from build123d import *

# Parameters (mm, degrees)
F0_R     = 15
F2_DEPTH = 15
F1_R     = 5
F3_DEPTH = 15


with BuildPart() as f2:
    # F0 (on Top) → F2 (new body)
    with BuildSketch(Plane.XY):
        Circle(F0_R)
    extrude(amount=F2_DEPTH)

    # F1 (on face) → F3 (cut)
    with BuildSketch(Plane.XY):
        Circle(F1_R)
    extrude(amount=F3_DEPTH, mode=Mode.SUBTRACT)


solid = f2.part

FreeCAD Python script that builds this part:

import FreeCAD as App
import Part
import Sketcher

V = App.Vector
Q = App.Units.Quantity

doc = App.newDocument("Part")
body = doc.addObject("PartDesign::Body", "Body")

# Sketch on XY plane
sketch1 = body.newObject("Sketcher::SketchObject", "Sketch")
sketch1.AttachmentSupport = (doc.getObject("XY_Plane"), [""])
sketch1.MapMode = "FlatFace"
sketch1.addGeometry(Part.Circle(V(0, 0, 0), V(0, 0, 1), 15), False)
sketch1.addConstraint([
    Sketcher.Constraint("Coincident", 0, 3, -1, 1),
    Sketcher.Constraint("Diameter", 0, Q("30 mm")),
])
pad1 = body.newObject("PartDesign::Pad", "Pad")
pad1.Profile = sketch1
pad1.Length = 15

# Sketch on XY plane
sketch2 = body.newObject("Sketcher::SketchObject", "Sketch001")
sketch2.AttachmentSupport = (doc.getObject("XY_Plane"), [""])
sketch2.MapMode = "FlatFace"
sketch2.addGeometry(Part.Circle(V(0, 0, 0), V(0, 0, 1), 5), False)
sketch2.addConstraint([
    Sketcher.Constraint("Coincident", 0, 3, -1, 1),
    Sketcher.Constraint("Diameter", 0, Q("10 mm")),
])
pocket1 = body.newObject("PartDesign::Pocket", "Pocket")
pocket1.Profile = sketch2
pocket1.Length = 15
pocket1.Reversed = True

doc.recompute()
